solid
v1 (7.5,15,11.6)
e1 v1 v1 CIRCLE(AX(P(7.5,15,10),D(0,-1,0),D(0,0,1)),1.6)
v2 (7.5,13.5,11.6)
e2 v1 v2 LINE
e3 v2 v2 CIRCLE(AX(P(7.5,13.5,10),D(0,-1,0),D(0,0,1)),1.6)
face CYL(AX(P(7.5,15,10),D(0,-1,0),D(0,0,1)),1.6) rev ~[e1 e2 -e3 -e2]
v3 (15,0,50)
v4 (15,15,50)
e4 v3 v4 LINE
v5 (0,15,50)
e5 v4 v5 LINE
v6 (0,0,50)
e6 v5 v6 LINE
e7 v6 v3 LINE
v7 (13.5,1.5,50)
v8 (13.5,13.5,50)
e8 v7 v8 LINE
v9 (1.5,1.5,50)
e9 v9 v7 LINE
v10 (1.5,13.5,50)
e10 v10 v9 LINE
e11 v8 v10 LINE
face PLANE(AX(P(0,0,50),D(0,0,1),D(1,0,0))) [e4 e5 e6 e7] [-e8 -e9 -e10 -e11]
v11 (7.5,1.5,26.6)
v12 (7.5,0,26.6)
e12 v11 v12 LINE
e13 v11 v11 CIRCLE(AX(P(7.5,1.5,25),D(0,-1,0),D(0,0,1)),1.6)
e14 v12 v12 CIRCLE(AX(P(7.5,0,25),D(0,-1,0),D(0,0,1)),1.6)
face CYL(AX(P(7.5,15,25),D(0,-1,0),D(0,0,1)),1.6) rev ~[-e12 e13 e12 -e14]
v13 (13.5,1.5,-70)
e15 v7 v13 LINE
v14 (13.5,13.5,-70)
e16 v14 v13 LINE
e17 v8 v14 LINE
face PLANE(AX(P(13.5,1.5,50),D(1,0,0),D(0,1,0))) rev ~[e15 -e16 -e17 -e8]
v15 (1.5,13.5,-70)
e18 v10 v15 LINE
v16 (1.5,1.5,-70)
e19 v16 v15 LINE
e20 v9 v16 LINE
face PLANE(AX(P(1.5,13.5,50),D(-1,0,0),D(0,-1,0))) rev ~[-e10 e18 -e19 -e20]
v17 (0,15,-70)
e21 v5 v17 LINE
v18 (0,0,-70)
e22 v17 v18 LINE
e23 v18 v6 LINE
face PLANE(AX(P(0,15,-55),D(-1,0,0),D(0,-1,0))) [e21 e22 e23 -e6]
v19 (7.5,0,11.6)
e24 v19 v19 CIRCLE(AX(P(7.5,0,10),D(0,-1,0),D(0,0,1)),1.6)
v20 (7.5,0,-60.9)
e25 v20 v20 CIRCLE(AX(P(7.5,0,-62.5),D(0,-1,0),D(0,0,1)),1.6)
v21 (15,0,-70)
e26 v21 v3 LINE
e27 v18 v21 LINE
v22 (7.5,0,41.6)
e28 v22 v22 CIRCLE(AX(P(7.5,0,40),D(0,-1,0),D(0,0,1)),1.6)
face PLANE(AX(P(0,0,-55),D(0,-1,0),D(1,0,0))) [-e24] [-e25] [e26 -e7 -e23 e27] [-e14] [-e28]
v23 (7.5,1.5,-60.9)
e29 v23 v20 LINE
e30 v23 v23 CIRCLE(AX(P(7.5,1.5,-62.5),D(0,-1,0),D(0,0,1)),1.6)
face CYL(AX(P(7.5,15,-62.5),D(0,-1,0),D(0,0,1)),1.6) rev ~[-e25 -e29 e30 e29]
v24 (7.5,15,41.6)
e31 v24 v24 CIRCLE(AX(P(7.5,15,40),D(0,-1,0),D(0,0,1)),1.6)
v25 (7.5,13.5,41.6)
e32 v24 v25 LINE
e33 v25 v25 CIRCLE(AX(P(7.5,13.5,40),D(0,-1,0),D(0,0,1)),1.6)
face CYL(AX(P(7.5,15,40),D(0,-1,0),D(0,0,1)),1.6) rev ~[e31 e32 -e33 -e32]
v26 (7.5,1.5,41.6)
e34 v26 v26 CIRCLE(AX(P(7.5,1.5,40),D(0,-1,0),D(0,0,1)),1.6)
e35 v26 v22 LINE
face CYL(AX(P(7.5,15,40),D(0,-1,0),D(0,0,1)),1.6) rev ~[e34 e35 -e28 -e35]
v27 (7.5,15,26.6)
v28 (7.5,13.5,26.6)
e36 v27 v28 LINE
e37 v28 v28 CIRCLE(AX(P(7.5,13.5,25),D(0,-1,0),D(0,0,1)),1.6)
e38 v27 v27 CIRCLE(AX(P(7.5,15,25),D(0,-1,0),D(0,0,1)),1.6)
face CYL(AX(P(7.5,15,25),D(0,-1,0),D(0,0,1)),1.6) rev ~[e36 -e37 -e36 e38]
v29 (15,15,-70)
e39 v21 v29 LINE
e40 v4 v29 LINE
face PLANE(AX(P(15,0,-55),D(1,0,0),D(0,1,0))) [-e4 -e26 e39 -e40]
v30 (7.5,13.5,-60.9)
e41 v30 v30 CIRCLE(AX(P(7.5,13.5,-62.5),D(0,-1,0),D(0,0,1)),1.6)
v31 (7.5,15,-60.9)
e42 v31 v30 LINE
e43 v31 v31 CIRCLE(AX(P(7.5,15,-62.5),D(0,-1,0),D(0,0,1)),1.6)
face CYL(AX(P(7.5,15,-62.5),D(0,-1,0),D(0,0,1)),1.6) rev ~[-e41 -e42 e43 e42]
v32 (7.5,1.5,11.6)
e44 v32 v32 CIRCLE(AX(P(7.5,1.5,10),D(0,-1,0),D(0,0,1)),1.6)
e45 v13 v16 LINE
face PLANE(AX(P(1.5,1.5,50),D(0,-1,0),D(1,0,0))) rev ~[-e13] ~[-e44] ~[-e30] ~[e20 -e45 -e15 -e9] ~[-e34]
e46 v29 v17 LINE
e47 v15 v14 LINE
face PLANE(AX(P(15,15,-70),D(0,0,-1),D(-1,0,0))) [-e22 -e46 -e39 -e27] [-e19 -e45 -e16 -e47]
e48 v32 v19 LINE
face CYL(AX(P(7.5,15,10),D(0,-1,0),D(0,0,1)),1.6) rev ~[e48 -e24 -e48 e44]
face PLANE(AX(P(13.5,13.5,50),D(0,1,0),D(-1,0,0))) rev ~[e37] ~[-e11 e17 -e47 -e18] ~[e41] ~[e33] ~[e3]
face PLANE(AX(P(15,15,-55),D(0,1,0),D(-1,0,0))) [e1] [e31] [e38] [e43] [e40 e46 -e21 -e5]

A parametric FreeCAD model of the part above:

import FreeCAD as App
import Part
import Sketcher

V = App.Vector
Q = App.Units.Quantity


def add_polygon(sketch, points):
    """Adds a closed chain of lines whose ends are joined by coincident constraints."""
    first, n = sketch.GeometryCount, len(points)
    for a, b in zip(points, points[1:] + points[:1]):
        sketch.addGeometry(Part.LineSegment(App.Vector(*a, 0), App.Vector(*b, 0)), False)
    for i in range(n):
        sketch.addConstraint(Sketcher.Constraint("Coincident", first + i, 2, first + (i + 1) % n, 1))

doc = App.newDocument("Part")
body = doc.addObject("PartDesign::Body", "Body")

# Sketch on XY plane
sketch1 = body.newObject("Sketcher::SketchObject", "Sketch")
sketch1.AttachmentSupport = (doc.getObject("XY_Plane"), [""])
sketch1.MapMode = "FlatFace"
add_polygon(sketch1, [(0, 15), (0, 0), (15, 0), (15, 15)])  # lines 0-3
sketch1.addConstraint(Sketcher.Constraint("Vertical", 0))
sketch1.addConstraint(Sketcher.Constraint("Horizontal", 1))
sketch1.addConstraint(Sketcher.Constraint("Vertical", 2))
sketch1.addConstraint(Sketcher.Constraint("Horizontal", 3))
sketch1.addConstraint(Sketcher.Constraint("Coincident", 0, 2, -1, 1))
sketch1.addConstraint(Sketcher.Constraint("Equal", 3, 0))
sketch1.addConstraint(Sketcher.Constraint("DistanceX", 1, 1, 1, 2, Q("15 mm")))
pad1 = body.newObject("PartDesign::Pad", "Pad")
pad1.Profile = sketch1
pad1.Length = 50

# Sketch on XZ plane
sketch2 = body.newObject("Sketcher::SketchObject", "Sketch001")
sketch2.AttachmentSupport = (doc.getObject("XZ_Plane"), [""])
sketch2.MapMode = "FlatFace"
sketch2.AttachmentOffset = App.Placement(V(0, 0, -15), App.Rotation())
sketch2.addGeometry(Part.Circle(V(7.5, 40, 0), V(0, 0, 1), 1.6), False)
sketch2.addGeometry(Part.Circle(V(7.5, 25, 0), V(0, 0, 1), 1.6), False)
sketch2.addGeometry(Part.Circle(V(7.5, 10, 0), V(0, 0, 1), 1.6), False)
sketch2.addConstraint(Sketcher.Constraint("Equal", 0, 1))
sketch2.addConstraint(Sketcher.Constraint("Equal", 1, 2))
sketch2.addConstraint(Sketcher.Constraint("Vertical", 0, 3, 1, 3))
sketch2.addConstraint(Sketcher.Constraint("Vertical", 1, 3, 2, 3))
sketch2.addConstraint(Sketcher.Constraint("Diameter", 0, Q("3.2 mm")))
sketch2.addConstraint(Sketcher.Constraint("DistanceY", -1, 1, 0, 3, Q("40 mm")))
sketch2.addConstraint(Sketcher.Constraint("DistanceY", -1, 1, 1, 3, Q("25 mm")))
sketch2.addConstraint(Sketcher.Constraint("DistanceY", -1, 1, 2, 3, Q("10 mm")))
sketch2.addConstraint(Sketcher.Constraint("DistanceX", -1, 1, 0, 3, Q("7.5 mm")))
doc.recompute()
hole = body.newObject("PartDesign::Hole", "Hole")
hole.Profile = sketch2
hole.ThreadType = "None"
hole.Diameter = 3.2
hole.DepthType = "ThroughAll"
hole.Reversed = True

# Sketch on XY plane
sketch3 = body.newObject("Sketcher::SketchObject", "Sketch002")
sketch3.AttachmentSupport = (doc.getObject("XY_Plane"), [""])
sketch3.MapMode = "FlatFace"
add_polygon(sketch3, [(0, 0), (0, 15), (15, 15), (15, 0)])  # lines 0-3
sketch3.addConstraint(Sketcher.Constraint("Vertical", 0))
sketch3.addConstraint(Sketcher.Constraint("Horizontal", 1))
sketch3.addConstraint(Sketcher.Constraint("Vertical", 2))
sketch3.addConstraint(Sketcher.Constraint("Horizontal", 3))
sketch3.addConstraint(Sketcher.Constraint("Coincident", 3, 2, -1, 1))
sketch3.addConstraint(Sketcher.Constraint("Equal", 3, 0))
sketch3.addConstraint(Sketcher.Constraint("DistanceX", 1, 1, 1, 2, Q("15 mm")))
pad2 = body.newObject("PartDesign::Pad", "Pad001")
pad2.Profile = sketch3
pad2.Length = 135
pad2.Reversed = True

# Sketch on XZ plane
sketch4 = body.newObject("Sketcher::SketchObject", "Sketch003")
sketch4.AttachmentSupport = (doc.getObject("XZ_Plane"), [""])
sketch4.MapMode = "FlatFace"
sketch4.AttachmentOffset = App.Placement(V(0, 0, -15), App.Rotation())
add_polygon(sketch4, [(0, -55), (15, -55), (15, -135), (0, -135)])  # lines 0-3
sketch4.addConstraint(Sketcher.Constraint("Horizontal", 0))
sketch4.addConstraint(Sketcher.Constraint("Vertical", 1))
sketch4.addConstraint(Sketcher.Constraint("Horizontal", 2))
sketch4.addConstraint(Sketcher.Constraint("Vertical", 3))
sketch4.addConstraint(Sketcher.Constraint("PointOnObject", 2, 2, -2))
sketch4.addConstraint(Sketcher.Constraint("DistanceX", 0, 1, 0, 2, Q("15 mm")))
sketch4.addConstraint(Sketcher.Constraint("DistanceY", 1, 2, 1, 1, Q("80 mm")))
sketch4.addConstraint(Sketcher.Constraint("DistanceY", 0, 2, -1, 1, Q("55 mm")))
pocket1 = body.newObject("PartDesign::Pocket", "Pocket")
pocket1.Profile = sketch4
pocket1.Length = 135
pocket1.Reversed = True

# Sketch on XY plane
sketch5 = body.newObject("Sketcher::SketchObject", "Sketch004")
sketch5.AttachmentSupport = (doc.getObject("XY_Plane"), [""])
sketch5.MapMode = "FlatFace"
sketch5.AttachmentOffset = App.Placement(V(0, 0, -55), App.Rotation())
add_polygon(sketch5, [(0, 0), (0, 15), (15, 15), (15, 0)])  # lines 0-3
sketch5.addConstraint(Sketcher.Constraint("Vertical", 0))
sketch5.addConstraint(Sketcher.Constraint("Horizontal", 1))
sketch5.addConstraint(Sketcher.Constraint("Vertical", 2))
sketch5.addConstraint(Sketcher.Constraint("Horizontal", 3))
sketch5.addConstraint(Sketcher.Constraint("Coincident", 3, 2, -1, 1))
sketch5.addConstraint(Sketcher.Constraint("Equal", 3, 0))
sketch5.addConstraint(Sketcher.Constraint("DistanceX", 1, 1, 1, 2, Q("15 mm")))
pad3 = body.newObject("PartDesign::Pad", "Pad002")
pad3.Profile = sketch5
pad3.Length = 15
pad3.Reversed = True

# Sketch on XZ plane
sketch6 = body.newObject("Sketcher::SketchObject", "Sketch005")
sketch6.AttachmentSupport = (doc.getObject("XZ_Plane"), [""])
sketch6.MapMode = "FlatFace"
sketch6.AttachmentOffset = App.Placement(V(0, 0, -15), App.Rotation())
sketch6.addGeometry(Part.Circle(V(7.5, -62.5, 0), V(0, 0, 1), 1.6), False)
sketch6.addConstraint(Sketcher.Constraint("Diameter", 0, Q("3.2 mm")))
sketch6.addConstraint(Sketcher.Constraint("DistanceX", -1, 1, 0, 3, Q("7.5 mm")))
sketch6.addConstraint(Sketcher.Constraint("DistanceY", 0, 3, -1, 1, Q("62.5 mm")))
doc.recompute()
hole2 = body.newObject("PartDesign::Hole", "Hole001")
hole2.Profile = sketch6
hole2.ThreadType = "None"
hole2.Diameter = 3.2
hole2.DepthType = "ThroughAll"
hole2.Reversed = True

# Sketch on XY plane
sketch7 = body.newObject("Sketcher::SketchObject", "Sketch006")
sketch7.AttachmentSupport = (doc.getObject("XY_Plane"), [""])
sketch7.MapMode = "FlatFace"
sketch7.AttachmentOffset = App.Placement(V(0, 0, 50), App.Rotation())
add_polygon(sketch7, [(1.5, 13.5), (1.5, 1.5), (13.5, 1.5), (13.5, 13.5)])  # lines 0-3
sketch7.addConstraint(Sketcher.Constraint("Vertical", 0))
sketch7.addConstraint(Sketcher.Constraint("Horizontal", 1))
sketch7.addConstraint(Sketcher.Constraint("Vertical", 2))
sketch7.addConstraint(Sketcher.Constraint("Horizontal", 3))
sketch7.addConstraint(Sketcher.Constraint("Equal", 3, 0))
sketch7.addConstraint(Sketcher.Constraint("DistanceX", 1, 1, 1, 2, Q("12 mm")))
sketch7.addConstraint(Sketcher.Constraint("DistanceX", -1, 1, 0, 2, Q("1.5 mm")))
sketch7.addConstraint(Sketcher.Constraint("DistanceY", -1, 1, 0, 2, Q("1.5 mm")))
pocket2 = body.newObject("PartDesign::Pocket", "Pocket001")
pocket2.Profile = sketch7
pocket2.Length = 130

doc.recompute()
